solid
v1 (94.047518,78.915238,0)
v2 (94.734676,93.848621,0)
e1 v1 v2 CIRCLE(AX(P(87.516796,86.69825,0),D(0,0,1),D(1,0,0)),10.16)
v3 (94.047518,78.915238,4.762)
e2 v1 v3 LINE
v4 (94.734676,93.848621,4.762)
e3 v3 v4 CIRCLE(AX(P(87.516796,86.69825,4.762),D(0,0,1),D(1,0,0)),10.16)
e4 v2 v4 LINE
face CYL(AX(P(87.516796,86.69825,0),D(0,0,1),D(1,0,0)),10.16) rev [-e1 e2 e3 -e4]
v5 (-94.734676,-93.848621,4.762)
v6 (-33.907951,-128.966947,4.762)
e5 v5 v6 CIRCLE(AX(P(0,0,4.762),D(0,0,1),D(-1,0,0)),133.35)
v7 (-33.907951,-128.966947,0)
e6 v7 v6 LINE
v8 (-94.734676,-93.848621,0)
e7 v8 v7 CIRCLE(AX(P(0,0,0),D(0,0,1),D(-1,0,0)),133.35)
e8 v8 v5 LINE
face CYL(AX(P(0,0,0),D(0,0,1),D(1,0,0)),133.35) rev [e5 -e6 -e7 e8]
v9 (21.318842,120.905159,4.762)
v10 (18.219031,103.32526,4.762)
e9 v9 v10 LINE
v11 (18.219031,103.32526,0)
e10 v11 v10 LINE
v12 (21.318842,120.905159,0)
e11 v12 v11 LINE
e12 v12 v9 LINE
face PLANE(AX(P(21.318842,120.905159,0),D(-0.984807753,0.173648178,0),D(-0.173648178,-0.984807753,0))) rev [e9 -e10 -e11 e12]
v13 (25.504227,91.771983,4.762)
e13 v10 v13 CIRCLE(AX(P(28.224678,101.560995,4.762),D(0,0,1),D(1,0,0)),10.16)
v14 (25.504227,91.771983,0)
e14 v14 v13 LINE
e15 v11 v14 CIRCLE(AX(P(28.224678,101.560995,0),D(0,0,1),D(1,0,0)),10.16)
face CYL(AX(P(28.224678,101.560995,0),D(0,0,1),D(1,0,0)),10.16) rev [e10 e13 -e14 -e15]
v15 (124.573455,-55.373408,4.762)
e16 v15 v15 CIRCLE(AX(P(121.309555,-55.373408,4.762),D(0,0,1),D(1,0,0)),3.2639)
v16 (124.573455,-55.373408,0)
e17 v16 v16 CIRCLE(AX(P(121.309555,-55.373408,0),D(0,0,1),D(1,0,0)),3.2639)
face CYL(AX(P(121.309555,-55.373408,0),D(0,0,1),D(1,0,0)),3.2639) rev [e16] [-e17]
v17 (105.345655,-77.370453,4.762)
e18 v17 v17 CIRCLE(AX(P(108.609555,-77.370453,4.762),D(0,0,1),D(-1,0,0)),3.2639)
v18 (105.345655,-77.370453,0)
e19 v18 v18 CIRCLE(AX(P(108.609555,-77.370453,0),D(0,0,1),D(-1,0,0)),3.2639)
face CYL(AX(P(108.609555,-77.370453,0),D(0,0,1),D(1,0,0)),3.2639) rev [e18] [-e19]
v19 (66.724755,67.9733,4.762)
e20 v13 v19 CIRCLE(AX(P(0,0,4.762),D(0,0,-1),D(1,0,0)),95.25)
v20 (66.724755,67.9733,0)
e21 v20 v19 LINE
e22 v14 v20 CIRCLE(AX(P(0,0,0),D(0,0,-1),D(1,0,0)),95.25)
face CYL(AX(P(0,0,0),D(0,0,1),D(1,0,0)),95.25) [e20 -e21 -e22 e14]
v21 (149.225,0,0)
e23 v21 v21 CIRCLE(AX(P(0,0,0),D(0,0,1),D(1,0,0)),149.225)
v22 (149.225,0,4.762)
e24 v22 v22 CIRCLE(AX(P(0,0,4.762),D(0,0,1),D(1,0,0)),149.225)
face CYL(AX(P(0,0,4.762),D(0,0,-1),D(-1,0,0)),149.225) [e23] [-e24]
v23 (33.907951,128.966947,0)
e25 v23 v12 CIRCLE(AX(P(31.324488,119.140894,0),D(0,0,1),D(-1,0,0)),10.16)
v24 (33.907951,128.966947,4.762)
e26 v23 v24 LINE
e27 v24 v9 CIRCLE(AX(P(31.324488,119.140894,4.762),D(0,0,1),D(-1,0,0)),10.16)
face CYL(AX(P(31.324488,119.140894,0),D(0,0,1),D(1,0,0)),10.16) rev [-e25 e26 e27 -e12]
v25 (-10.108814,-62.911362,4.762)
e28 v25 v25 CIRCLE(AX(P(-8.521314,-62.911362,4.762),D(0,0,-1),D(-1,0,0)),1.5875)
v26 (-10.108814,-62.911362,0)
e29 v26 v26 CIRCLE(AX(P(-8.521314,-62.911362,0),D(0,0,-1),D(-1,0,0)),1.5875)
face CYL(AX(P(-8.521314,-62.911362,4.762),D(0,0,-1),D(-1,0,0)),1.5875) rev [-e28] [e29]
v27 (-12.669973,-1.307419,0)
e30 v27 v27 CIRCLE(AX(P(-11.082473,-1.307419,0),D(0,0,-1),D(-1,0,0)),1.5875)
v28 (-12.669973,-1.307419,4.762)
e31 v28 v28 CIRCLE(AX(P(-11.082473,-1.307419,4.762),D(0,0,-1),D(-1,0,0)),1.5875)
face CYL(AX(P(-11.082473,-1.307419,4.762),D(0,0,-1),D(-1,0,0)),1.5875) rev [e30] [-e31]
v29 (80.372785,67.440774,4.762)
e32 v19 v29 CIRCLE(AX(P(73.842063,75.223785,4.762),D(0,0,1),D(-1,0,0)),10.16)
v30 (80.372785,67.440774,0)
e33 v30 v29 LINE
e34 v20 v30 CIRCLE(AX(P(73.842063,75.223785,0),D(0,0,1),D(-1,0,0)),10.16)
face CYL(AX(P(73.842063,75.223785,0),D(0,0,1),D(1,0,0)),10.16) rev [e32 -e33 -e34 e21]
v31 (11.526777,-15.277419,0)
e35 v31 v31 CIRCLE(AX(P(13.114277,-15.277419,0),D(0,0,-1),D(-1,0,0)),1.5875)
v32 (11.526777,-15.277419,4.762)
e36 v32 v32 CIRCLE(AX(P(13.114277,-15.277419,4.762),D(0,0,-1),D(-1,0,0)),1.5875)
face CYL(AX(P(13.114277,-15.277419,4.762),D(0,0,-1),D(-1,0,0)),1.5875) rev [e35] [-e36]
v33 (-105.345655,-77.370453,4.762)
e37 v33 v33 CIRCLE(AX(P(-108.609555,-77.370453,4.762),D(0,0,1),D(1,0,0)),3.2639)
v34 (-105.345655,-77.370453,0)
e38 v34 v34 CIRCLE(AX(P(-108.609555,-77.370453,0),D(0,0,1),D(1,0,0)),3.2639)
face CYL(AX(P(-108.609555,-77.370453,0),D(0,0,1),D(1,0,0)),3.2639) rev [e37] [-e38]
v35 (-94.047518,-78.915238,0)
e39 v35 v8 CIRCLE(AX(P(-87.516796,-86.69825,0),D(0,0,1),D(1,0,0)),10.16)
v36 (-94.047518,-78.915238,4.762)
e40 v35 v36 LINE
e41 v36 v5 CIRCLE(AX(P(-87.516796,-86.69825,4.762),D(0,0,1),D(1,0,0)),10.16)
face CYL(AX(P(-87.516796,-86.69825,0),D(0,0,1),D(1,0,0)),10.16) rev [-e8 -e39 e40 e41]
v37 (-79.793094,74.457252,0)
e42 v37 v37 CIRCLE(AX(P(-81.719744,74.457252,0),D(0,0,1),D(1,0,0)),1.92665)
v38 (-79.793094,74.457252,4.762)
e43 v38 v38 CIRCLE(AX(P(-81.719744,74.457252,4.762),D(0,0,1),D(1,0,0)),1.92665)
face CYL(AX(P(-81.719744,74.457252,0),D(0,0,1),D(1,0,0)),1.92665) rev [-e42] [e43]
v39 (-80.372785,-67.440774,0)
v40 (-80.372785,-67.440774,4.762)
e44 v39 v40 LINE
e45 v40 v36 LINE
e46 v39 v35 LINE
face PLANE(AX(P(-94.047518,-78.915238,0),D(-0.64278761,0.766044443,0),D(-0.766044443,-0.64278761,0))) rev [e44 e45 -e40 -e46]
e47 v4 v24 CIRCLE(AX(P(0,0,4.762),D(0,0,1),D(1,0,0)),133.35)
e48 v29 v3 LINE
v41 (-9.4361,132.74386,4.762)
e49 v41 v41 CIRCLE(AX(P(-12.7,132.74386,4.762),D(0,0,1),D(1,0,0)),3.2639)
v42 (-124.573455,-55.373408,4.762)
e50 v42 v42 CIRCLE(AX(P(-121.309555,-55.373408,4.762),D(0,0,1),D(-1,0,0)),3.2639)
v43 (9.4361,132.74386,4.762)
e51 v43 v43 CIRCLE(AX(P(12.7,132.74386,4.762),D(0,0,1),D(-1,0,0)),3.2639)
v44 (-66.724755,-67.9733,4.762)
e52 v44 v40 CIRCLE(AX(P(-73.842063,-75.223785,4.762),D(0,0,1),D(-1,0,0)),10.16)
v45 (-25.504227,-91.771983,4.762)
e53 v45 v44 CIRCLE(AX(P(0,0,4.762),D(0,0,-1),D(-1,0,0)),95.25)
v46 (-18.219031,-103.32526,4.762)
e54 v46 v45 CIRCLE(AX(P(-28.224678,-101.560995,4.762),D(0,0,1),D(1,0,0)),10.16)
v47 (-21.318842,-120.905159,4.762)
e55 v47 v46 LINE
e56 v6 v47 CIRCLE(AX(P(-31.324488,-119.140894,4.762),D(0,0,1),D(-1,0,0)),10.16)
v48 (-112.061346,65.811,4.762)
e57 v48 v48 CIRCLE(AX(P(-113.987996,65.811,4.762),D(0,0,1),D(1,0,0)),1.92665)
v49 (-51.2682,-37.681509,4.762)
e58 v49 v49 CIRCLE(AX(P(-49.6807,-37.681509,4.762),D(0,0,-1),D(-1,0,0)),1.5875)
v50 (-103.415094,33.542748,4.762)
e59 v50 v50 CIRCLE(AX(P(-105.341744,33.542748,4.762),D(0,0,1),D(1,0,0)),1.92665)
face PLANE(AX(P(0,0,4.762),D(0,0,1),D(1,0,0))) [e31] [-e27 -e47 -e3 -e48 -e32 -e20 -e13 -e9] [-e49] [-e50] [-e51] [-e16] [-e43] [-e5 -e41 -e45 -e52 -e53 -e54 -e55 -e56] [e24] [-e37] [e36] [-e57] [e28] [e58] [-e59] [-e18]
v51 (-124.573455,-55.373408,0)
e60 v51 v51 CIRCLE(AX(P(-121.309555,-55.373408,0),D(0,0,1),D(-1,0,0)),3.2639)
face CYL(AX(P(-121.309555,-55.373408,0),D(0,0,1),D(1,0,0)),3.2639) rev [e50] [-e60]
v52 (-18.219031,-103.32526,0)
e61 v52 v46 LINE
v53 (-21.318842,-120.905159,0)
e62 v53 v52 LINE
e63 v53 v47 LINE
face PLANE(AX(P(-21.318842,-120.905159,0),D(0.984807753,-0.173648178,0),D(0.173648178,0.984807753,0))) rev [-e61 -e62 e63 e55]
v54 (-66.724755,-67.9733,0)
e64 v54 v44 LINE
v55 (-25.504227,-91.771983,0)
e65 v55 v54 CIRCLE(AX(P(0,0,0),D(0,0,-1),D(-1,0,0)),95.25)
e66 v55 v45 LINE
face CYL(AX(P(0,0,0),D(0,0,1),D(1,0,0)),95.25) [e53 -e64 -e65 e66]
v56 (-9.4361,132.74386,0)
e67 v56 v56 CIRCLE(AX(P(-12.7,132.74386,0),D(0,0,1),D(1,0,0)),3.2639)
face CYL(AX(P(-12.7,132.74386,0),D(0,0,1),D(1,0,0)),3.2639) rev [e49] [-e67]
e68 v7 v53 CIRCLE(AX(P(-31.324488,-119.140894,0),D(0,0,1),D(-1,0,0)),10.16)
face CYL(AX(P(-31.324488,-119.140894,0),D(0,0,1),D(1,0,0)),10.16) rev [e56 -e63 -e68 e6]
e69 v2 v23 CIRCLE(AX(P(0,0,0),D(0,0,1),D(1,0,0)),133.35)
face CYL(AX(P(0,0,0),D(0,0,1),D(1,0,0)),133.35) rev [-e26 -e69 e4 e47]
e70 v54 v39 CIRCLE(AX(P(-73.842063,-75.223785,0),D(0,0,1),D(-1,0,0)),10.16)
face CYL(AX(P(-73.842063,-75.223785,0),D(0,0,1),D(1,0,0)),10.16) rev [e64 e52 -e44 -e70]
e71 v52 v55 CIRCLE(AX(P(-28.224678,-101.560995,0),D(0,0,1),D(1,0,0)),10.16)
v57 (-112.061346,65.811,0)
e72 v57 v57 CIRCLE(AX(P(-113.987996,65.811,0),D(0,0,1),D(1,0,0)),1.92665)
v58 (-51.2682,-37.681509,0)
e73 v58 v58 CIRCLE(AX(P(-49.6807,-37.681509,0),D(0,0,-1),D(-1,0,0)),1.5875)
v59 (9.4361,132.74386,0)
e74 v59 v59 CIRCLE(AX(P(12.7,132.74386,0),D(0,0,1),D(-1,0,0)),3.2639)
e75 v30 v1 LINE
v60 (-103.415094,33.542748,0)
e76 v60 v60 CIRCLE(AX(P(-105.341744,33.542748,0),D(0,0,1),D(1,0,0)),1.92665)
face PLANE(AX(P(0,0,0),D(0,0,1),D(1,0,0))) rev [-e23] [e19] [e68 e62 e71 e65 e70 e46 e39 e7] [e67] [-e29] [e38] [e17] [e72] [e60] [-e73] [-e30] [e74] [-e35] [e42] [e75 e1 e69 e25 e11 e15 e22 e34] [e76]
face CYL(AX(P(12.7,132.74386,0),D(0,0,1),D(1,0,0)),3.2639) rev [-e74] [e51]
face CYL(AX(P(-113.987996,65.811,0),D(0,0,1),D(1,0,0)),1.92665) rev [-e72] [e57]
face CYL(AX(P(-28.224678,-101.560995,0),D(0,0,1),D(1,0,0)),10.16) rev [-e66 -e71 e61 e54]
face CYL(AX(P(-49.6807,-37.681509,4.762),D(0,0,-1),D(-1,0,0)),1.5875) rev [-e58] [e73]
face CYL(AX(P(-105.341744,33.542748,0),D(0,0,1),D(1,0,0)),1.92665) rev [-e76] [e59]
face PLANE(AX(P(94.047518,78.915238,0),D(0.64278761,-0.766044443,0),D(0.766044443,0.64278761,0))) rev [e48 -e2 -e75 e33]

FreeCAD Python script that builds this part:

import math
import FreeCAD as App
import Part
import Sketcher
Q = App.Units.Quantity

doc = App.newDocument("Part")
body = doc.addObject("PartDesign::Body", "Body")

sketch1 = body.newObject("Sketcher::SketchObject", "Sketch")
sketch1.AttachmentSupport = (doc.getObject("XY_Plane"), [""])
sketch1.MapMode = "FlatFace"
sketch1.addGeometry([
    Part.ArcOfCircle(Part.Circle(App.Vector(0, 0, 0), App.Vector(0, 0, 1), 149.2), math.radians(-122.58), math.radians(-117.42)),
    Part.ArcOfCircle(Part.Circle(App.Vector(0, 0, 0), App.Vector(0, 0, 1), 149.2), math.radians(-117), math.radians(-31)),
    Part.ArcOfCircle(Part.Circle(App.Vector(0, 0, 0), App.Vector(0, 0, 1), 149.2), math.radians(-30.62), math.radians(-29.38)),
    Part.ArcOfCircle(Part.Circle(App.Vector(0, 0, 0), App.Vector(0, 0, 1), 149.2), math.radians(-29), math.radians(237)),
], False)
sketch1.addConstraint([
    Sketcher.Constraint("Tangent", 0, 2, 1, 1),
    Sketcher.Constraint("Tangent", 1, 2, 2, 1),
    Sketcher.Constraint("Tangent", 2, 2, 3, 1),
    Sketcher.Constraint("Coincident", 3, 2, 0, 1),
    Sketcher.Constraint("Coincident", 0, 3, -1, 1),
    Sketcher.Constraint("Coincident", 2, 3, -1, 1),
    Sketcher.Constraint("Radius", 0, Q("5.875 in")),
    Sketcher.Constraint("DistanceY", 0, 2, 1, 2, Q("56.4453 mm")),
    Sketcher.Constraint("DistanceX", 0, 2, -1, 1, Q("68.718949 mm")),
    Sketcher.Constraint("DistanceX", -1, 1, 2, 2, Q("130.037432 mm")),
    Sketcher.Constraint("DistanceY", 3, 2, -1, 1, Q("125.742648 mm")),
])
pad1 = body.newObject("PartDesign::Pad", "Pad")
pad1.Profile = sketch1
pad1.Length = 4.762

sketch2 = body.newObject("Sketcher::SketchObject", "Sketch001")
sketch2.AttachmentSupport = (doc.getObject("XY_Plane"), [""])
sketch2.MapMode = "FlatFace"
sketch2.AttachmentOffset = App.Placement(App.Vector(0, 0, 4.762), App.Rotation())
sketch2.addGeometry([
    Part.Circle(App.Vector(-81.7, 74.5, 0), App.Vector(0, 0, 1), 1.9),
    Part.Circle(App.Vector(-114, 65.8, 0), App.Vector(0, 0, 1), 1.9),
    Part.Circle(App.Vector(-105.3, 33.5, 0), App.Vector(0, 0, 1), 1.9),
], False)
sketch2.addConstraint([
    Sketcher.Constraint("Equal", 0, 1),
    Sketcher.Constraint("Equal", 1, 2),
    Sketcher.Constraint("Diameter", 0, Q("3.853299 mm")),
    Sketcher.Constraint("DistanceX", 2, 3, 0, 3, Q("0.93 in")),
    Sketcher.Constraint("DistanceY", -1, 1, 1, 3, Q("65.811 mm")),
    Sketcher.Constraint("DistanceX", 0, 3, -1, 1, Q("81.719744 mm")),
    Sketcher.Constraint("DistanceY", -1, 1, 0, 3, Q("74.457252 mm")),
    Sketcher.Constraint("DistanceX", 1, 3, -1, 1, Q("113.987996 mm")),
    Sketcher.Constraint("DistanceY", -1, 1, 2, 3, Q("33.542748 mm")),
])
pocket1 = body.newObject("PartDesign::Pocket", "Pocket")
pocket1.Profile = sketch2
pocket1.Type = "ThroughAll"

sketch3 = body.newObject("Sketcher::SketchObject", "Sketch002")
sketch3.AttachmentSupport = (doc.getObject("XY_Plane"), [""])
sketch3.MapMode = "FlatFace"
sketch3.addGeometry([
    Part.Circle(App.Vector(13.1, -15.3, 0), App.Vector(0, 0, 1), 1.6),
    Part.Circle(App.Vector(-8.5, -62.9, 0), App.Vector(0, 0, 1), 1.6),
    Part.Circle(App.Vector(-11.1, -1.3, 0), App.Vector(0, 0, 1), 1.6),
    Part.Circle(App.Vector(-49.7, -37.7, 0), App.Vector(0, 0, 1), 1.6),
], False)
sketch3.addConstraint([
    Sketcher.Constraint("Equal", 0, 1),
    Sketcher.Constraint("Equal", 1, 2),
    Sketcher.Constraint("Equal", 2, 3),
    Sketcher.Constraint("Diameter", 0, Q("0.125 in")),
    Sketcher.Constraint("DistanceY", 0, 3, 2, 3, Q("0.55 in")),
    Sketcher.Constraint("DistanceX", 3, 3, -1, 1, Q("49.6807 mm")),
    Sketcher.Constraint("DistanceY", 0, 3, -1, 1, Q("15.277419 mm")),
    Sketcher.Constraint("DistanceY", 1, 3, -1, 1, Q("62.911362 mm")),
    Sketcher.Constraint("DistanceY", 3, 3, -1, 1, Q("37.681509 mm")),
    Sketcher.Constraint("DistanceX", 1, 3, 0, 3, Q("21.635591 mm")),
    Sketcher.Constraint("DistanceX", 2, 3, 0, 3, Q("24.19675 mm")),
    Sketcher.Constraint("DistanceX", -1, 1, 0, 3, Q("13.114277 mm")),
])
pocket2 = body.newObject("PartDesign::Pocket", "Pocket001")
pocket2.Profile = sketch3
pocket2.Type = "ThroughAll"
pocket2.Reversed = True

sketch4 = body.newObject("Sketcher::SketchObject", "Sketch003")
sketch4.AttachmentSupport = (doc.getObject("XY_Plane"), [""])
sketch4.MapMode = "FlatFace"
sketch4.AttachmentOffset = App.Placement(App.Vector(0, 0, 4.762), App.Rotation())
sketch4.addGeometry([
    Part.Circle(App.Vector(121.3, -55.4, 0), App.Vector(0, 0, 1), 3.3),
    Part.Circle(App.Vector(108.6, -77.4, 0), App.Vector(0, 0, 1), 3.3),
    Part.Circle(App.Vector(-108.6, -77.4, 0), App.Vector(0, 0, 1), 3.3),
    Part.Circle(App.Vector(-121.3, -55.4, 0), App.Vector(0, 0, 1), 3.3),
    Part.Circle(App.Vector(-12.7, 132.7, 0), App.Vector(0, 0, 1), 3.3),
    Part.Circle(App.Vector(12.7, 132.7, 0), App.Vector(0, 0, 1), 3.3),
], False)
sketch4.addConstraint([
    Sketcher.Constraint("Equal", 0, 1),
    Sketcher.Constraint("Equal", 1, 2),
    Sketcher.Constraint("Equal", 2, 3),
    Sketcher.Constraint("Equal", 3, 4),
    Sketcher.Constraint("Equal", 4, 5),
    Sketcher.Constraint("Symmetric", 1, 3, 2, 3, -2),
    Sketcher.Constraint("Symmetric", 0, 3, 3, 3, -2),
    Sketcher.Constraint("Symmetric", 4, 3, 5, 3, -2),
    Sketcher.Constraint("Diameter", 0, Q("0.257 in")),
    Sketcher.Constraint("DistanceX", 4, 3, 5, 3, Q("1 in")),
    Sketcher.Constraint("DistanceX", 1, 3, 0, 3, Q("0.5 in")),
    Sketcher.Constraint("DistanceY", -1, 1, 4, 3, Q("132.74386 mm")),
    Sketcher.Constraint("DistanceX", 2, 3, 1, 3, Q("217.219111 mm")),
    Sketcher.Constraint("DistanceY", 3, 3, 4, 3, Q("188.117268 mm")),
    Sketcher.Constraint("DistanceY", 1, 3, -1, 1, Q("77.370453 mm")),
])
pocket3 = body.newObject("PartDesign::Pocket", "Pocket002")
pocket3.Profile = sketch4
pocket3.Type = "ThroughAll"

sketch5 = body.newObject("Sketcher::SketchObject", "Sketch004")
sketch5.AttachmentSupport = (doc.getObject("XY_Plane"), [""])
sketch5.MapMode = "FlatFace"
sketch5.AttachmentOffset = App.Placement(App.Vector(0, 0, 4.762), App.Rotation())
sketch5.addGeometry([
    Part.LineSegment(App.Vector(21, 121, 0), App.Vector(18, 103, 0)),
    Part.ArcOfCircle(Part.Circle(App.Vector(28, 102, 0), App.Vector(0, 0, 1), 10), math.radians(170), math.radians(254)),
    Part.ArcOfCircle(Part.Circle(App.Vector(0, 0, 0), App.Vector(0, 0, 1), 95), math.radians(46), math.radians(74)),
    Part.ArcOfCircle(Part.Circle(App.Vector(74, 75, 0), App.Vector(0, 0, 1), 10), math.radians(-134), math.radians(-50)),
    Part.LineSegment(App.Vector(80, 67, 0), App.Vector(94, 79, 0)),
    Part.ArcOfCircle(Part.Circle(App.Vector(88, 87, 0), App.Vector(0, 0, 1), 10), math.radians(-50), math.radians(45)),
    Part.ArcOfCircle(Part.Circle(App.Vector(0, 0, 0), App.Vector(0, 0, 1), 133), math.radians(45), math.radians(75)),
    Part.ArcOfCircle(Part.Circle(App.Vector(31, 119, 0), App.Vector(0, 0, 1), 10), math.radians(75), math.radians(170)),
    Part.LineSegment(App.Vector(-80, -67, 0), App.Vector(-94, -79, 0)),
    Part.ArcOfCircle(Part.Circle(App.Vector(-88, -87, 0), App.Vector(0, 0, 1), 10), math.radians(130), math.radians(225)),
    Part.ArcOfCircle(Part.Circle(App.Vector(0, 0, 0), App.Vector(0, 0, 1), 133), math.radians(-135), math.radians(-105)),
    Part.ArcOfCircle(Part.Circle(App.Vector(-31, -119, 0), App.Vector(0, 0, 1), 10), math.radians(-105), math.radians(-10)),
    Part.LineSegment(App.Vector(-21, -121, 0), App.Vector(-18, -103, 0)),
    Part.ArcOfCircle(Part.Circle(App.Vector(-28, -102, 0), App.Vector(0, 0, 1), 10), math.radians(-10), math.radians(74)),
    Part.ArcOfCircle(Part.Circle(App.Vector(0, 0, 0), App.Vector(0, 0, 1), 95), math.radians(-134), math.radians(-106)),
    Part.ArcOfCircle(Part.Circle(App.Vector(-74, -75, 0), App.Vector(0, 0, 1), 10), math.radians(46), math.radians(130)),
], False)
sketch5.addConstraint([
    Sketcher.Constraint("Tangent", 0, 2, 1, 1),
    Sketcher.Constraint("Tangent", 1, 2, 2, 2),
    Sketcher.Constraint("Tangent", 2, 1, 3, 1),
    Sketcher.Constraint("Tangent", 3, 2, 4, 1),
    Sketcher.Constraint("Tangent", 4, 2, 5, 1),
    Sketcher.Constraint("Tangent", 5, 2, 6, 1),
    Sketcher.Constraint("Tangent", 6, 2, 7, 1),
    Sketcher.Constraint("Tangent", 7, 2, 0, 1),
    Sketcher.Constraint("Tangent", 8, 2, 9, 1),
    Sketcher.Constraint("Tangent", 9, 2, 10, 1),
    Sketcher.Constraint("Tangent", 10, 2, 11, 1),
    Sketcher.Constraint("Tangent", 11, 2, 12, 1),
    Sketcher.Constraint("Tangent", 12, 2, 13, 1),
    Sketcher.Constraint("Tangent", 13, 2, 14, 2),
    Sketcher.Constraint("Tangent", 14, 1, 15, 1),
    Sketcher.Constraint("Tangent", 15, 2, 8, 1),
    Sketcher.Constraint("Coincident", 2, 3, -1, 1),
    Sketcher.Constraint("Coincident", 6, 3, -1, 1),
    Sketcher.Constraint("Coincident", 10, 3, -1, 1),
    Sketcher.Constraint("Coincident", 14, 3, -1, 1),
    Sketcher.Constraint("Equal", 1, 3),
    Sketcher.Constraint("Equal", 3, 5),
    Sketcher.Constraint("Equal", 5, 7),
    Sketcher.Constraint("Equal", 7, 9),
    Sketcher.Constraint("Equal", 6, 10),
    Sketcher.Constraint("Equal", 9, 11),
    Sketcher.Constraint("Equal", 11, 13),
    Sketcher.Constraint("Equal", 2, 14),
    Sketcher.Constraint("Equal", 13, 15),
    Sketcher.Constraint("Symmetric", 4, 2, 8, 2, -1, 1),
    Sketcher.Constraint("Symmetric", 7, 2, 11, 2, -1, 1),
    Sketcher.Constraint("Equal", 0, 4),
    Sketcher.Constraint("Radius", 1, Q("0.4 in")),
    Sketcher.Constraint("Radius", 2, Q("3.75 in")),
    Sketcher.Constraint("Radius", 6, Q("5.25 in")),
    Sketcher.Constraint("Angle", 0, Q("-100 deg")),
    Sketcher.Constraint("Angle", 4, Q("40 deg")),
    Sketcher.Constraint("DistanceY", -1, 1, 2, 1, Q("67.9733 mm")),
])
pocket4 = body.newObject("PartDesign::Pocket", "Pocket003")
pocket4.Profile = sketch5
pocket4.Type = "ThroughAll"

doc.recompute()
